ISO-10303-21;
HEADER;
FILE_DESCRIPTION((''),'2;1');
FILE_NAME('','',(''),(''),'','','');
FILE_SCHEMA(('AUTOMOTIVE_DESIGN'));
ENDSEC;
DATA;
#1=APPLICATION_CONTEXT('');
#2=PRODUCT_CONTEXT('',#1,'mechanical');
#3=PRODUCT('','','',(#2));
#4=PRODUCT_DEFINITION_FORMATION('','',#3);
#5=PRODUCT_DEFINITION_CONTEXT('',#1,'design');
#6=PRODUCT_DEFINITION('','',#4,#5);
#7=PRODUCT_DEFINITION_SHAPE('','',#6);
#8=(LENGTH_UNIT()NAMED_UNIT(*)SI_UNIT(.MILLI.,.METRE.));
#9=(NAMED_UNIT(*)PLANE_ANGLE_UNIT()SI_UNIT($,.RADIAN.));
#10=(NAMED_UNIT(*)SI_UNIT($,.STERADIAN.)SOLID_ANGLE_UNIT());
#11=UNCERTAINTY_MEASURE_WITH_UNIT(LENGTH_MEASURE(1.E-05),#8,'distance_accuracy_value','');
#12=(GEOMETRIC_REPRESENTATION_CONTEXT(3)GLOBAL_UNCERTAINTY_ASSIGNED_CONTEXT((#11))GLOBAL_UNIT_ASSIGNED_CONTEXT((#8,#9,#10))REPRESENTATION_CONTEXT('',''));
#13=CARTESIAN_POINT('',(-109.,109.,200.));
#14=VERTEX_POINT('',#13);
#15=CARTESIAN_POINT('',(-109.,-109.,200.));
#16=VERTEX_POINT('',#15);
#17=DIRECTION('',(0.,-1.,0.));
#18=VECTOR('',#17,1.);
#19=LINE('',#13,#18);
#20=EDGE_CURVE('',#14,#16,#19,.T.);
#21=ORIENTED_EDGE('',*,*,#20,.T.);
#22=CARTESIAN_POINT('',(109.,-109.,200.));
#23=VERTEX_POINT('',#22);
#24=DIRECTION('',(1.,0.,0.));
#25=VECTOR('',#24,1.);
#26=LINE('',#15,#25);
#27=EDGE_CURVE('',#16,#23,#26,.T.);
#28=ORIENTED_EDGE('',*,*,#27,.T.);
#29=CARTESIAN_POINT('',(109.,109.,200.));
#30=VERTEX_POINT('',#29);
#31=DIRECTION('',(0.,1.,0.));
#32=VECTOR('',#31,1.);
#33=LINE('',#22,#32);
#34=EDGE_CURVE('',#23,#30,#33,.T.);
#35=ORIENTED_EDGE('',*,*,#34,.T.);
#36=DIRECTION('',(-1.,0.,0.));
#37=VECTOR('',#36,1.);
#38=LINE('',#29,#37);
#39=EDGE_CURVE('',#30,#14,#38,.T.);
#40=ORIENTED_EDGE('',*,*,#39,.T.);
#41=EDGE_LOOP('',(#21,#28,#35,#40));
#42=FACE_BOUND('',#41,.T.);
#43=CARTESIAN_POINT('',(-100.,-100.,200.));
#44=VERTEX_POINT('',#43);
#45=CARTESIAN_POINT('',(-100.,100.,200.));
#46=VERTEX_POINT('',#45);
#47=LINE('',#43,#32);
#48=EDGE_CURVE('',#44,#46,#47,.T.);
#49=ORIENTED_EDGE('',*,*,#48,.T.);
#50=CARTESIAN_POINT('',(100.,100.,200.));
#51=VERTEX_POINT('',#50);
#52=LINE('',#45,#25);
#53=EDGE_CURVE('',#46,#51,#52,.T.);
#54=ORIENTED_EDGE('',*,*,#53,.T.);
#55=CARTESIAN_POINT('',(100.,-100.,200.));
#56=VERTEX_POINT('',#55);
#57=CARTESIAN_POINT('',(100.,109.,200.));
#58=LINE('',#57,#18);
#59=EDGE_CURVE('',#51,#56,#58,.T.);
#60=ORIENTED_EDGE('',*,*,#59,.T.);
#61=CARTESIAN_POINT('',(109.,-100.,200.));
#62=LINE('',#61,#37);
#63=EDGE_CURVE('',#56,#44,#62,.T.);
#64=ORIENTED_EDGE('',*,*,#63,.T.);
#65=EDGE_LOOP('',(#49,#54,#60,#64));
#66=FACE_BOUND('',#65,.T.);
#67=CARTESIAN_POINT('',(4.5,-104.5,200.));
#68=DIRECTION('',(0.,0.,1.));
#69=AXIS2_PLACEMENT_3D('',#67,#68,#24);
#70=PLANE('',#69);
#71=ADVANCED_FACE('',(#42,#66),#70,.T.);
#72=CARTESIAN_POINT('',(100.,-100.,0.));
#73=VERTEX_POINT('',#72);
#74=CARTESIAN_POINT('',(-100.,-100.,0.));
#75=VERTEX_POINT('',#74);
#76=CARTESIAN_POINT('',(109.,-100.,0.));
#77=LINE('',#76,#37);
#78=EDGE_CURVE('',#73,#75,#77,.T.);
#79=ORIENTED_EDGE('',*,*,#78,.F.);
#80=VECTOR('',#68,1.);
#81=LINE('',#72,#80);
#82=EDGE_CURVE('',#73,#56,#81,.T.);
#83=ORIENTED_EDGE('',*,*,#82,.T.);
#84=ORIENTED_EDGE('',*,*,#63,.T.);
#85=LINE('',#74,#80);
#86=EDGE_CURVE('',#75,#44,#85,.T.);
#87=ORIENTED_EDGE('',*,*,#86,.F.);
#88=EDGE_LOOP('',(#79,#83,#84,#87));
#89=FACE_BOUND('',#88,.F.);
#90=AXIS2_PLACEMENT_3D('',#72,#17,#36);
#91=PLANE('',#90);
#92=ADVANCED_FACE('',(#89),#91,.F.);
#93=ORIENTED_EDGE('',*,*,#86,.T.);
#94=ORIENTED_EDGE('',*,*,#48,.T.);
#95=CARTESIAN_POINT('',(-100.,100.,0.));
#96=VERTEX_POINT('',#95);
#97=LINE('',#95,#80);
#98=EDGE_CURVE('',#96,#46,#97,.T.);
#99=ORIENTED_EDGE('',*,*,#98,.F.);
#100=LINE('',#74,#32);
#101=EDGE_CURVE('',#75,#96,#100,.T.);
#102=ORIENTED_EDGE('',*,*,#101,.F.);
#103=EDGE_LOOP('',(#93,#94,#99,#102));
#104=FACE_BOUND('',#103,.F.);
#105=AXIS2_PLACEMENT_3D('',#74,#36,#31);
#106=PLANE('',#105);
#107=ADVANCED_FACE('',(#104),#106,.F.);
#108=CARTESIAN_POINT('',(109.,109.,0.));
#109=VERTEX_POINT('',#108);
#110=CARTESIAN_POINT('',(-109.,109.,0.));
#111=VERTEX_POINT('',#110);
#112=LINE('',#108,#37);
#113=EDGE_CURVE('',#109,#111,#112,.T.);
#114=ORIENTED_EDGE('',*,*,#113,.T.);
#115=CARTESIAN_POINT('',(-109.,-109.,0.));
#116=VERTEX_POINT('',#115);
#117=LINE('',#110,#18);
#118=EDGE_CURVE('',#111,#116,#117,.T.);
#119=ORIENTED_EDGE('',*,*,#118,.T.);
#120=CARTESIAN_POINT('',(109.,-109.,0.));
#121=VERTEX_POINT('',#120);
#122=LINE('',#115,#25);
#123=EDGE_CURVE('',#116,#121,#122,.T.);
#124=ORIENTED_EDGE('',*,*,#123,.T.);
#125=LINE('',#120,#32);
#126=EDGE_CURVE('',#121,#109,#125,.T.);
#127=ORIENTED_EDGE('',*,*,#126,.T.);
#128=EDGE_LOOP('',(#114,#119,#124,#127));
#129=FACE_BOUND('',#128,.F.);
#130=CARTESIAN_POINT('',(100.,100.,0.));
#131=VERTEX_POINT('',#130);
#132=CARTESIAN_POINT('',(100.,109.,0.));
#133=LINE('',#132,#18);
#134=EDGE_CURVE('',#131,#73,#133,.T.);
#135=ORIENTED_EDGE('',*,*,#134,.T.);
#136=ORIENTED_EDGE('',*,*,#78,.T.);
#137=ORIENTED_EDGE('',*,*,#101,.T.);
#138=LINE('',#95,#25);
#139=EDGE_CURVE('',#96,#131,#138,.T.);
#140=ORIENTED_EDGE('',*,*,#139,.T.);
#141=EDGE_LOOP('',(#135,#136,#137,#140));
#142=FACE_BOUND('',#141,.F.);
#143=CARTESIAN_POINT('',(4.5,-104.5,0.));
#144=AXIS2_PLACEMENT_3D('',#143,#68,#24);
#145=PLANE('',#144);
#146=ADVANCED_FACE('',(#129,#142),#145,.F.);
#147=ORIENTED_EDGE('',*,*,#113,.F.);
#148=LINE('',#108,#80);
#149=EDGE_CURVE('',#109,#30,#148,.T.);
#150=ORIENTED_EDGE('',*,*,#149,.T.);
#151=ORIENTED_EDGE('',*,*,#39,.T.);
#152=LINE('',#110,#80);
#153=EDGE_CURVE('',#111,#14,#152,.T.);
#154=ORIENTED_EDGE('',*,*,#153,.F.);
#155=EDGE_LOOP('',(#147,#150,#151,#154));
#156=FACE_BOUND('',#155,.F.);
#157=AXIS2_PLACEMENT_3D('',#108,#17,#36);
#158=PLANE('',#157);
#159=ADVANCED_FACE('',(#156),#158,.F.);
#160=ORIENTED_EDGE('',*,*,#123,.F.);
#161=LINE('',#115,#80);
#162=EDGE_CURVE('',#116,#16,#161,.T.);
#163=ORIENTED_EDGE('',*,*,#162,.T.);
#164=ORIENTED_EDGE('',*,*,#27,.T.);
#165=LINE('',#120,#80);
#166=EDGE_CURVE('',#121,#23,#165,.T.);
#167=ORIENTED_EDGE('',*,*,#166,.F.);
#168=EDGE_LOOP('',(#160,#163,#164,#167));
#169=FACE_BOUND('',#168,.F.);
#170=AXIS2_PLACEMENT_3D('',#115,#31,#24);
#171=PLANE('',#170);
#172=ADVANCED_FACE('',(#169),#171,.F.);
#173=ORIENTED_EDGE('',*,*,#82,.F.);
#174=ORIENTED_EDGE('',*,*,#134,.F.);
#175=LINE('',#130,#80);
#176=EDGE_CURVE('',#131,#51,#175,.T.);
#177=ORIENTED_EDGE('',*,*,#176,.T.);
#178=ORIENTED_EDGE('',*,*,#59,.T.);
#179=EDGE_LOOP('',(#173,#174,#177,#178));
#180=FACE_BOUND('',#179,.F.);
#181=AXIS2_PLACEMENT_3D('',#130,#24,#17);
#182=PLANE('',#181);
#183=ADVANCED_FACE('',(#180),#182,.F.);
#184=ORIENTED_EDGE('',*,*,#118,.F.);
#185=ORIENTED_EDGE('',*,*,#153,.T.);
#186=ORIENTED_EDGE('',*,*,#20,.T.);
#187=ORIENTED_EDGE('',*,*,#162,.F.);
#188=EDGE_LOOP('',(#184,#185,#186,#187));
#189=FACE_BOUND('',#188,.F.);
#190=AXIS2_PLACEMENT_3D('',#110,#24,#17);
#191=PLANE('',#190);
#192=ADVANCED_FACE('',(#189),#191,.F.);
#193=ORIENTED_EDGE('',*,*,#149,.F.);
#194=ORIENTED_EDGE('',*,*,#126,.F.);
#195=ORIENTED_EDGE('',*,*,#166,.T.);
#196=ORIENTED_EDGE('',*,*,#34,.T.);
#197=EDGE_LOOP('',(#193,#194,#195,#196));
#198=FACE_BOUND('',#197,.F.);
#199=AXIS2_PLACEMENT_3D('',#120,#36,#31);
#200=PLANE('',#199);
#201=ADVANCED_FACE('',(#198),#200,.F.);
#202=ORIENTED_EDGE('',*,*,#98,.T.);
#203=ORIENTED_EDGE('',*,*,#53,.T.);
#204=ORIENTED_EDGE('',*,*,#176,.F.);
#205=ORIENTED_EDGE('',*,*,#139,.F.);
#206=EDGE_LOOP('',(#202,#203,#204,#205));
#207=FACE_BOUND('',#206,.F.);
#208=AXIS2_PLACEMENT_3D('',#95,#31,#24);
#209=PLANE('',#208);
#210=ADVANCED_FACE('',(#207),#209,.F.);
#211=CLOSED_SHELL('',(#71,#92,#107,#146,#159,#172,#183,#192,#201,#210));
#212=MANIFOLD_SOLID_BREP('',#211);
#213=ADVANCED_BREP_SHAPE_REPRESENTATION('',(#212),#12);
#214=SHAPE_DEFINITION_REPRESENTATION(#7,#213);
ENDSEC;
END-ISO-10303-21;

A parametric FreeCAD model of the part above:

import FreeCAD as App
import Part
import Sketcher

V = App.Vector
Q = App.Units.Quantity

doc = App.newDocument("Part")
params = doc.addObject("Spreadsheet::Sheet", "Params")
for row, (alias, value) in enumerate([
    ("sketch1_width", "218 mm"),
    ("sketch1_width2", "200 mm"),
    ("pad1_length", "200 mm"),
], start=1):
    params.set(f"A{row}", alias)
    params.set(f"B{row}", "=" + value)
    params.setAlias(f"B{row}", alias)

body = doc.addObject("PartDesign::Body", "Body")

# Sketch on XY plane
sketch1 = body.newObject("Sketcher::SketchObject", "Sketch")
sketch1.AttachmentSupport = (doc.getObject("XY_Plane"), [""])
sketch1.MapMode = "FlatFace"
sketch1.addGeometry([
    Part.LineSegment(V(109, -109, 0), V(109, 109, 0)),  # 0
    Part.LineSegment(V(109, 109, 0), V(-109, 109, 0)),  # 1
    Part.LineSegment(V(-109, 109, 0), V(-109, -109, 0)),  # 2
    Part.LineSegment(V(-109, -109, 0), V(109, -109, 0)),  # 3
    Part.LineSegment(V(100, 100, 0), V(100, -100, 0)),  # 4
    Part.LineSegment(V(100, -100, 0), V(-100, -100, 0)),  # 5
    Part.LineSegment(V(-100, -100, 0), V(-100, 100, 0)),  # 6
    Part.LineSegment(V(-100, 100, 0), V(100, 100, 0)),  # 7
], False)
sketch1.addConstraint([
    Sketcher.Constraint("Coincident", 0, 2, 1, 1),
    Sketcher.Constraint("Coincident", 1, 2, 2, 1),
    Sketcher.Constraint("Coincident", 2, 2, 3, 1),
    Sketcher.Constraint("Coincident", 3, 2, 0, 1),
    Sketcher.Constraint("Coincident", 4, 2, 5, 1),
    Sketcher.Constraint("Coincident", 5, 2, 6, 1),
    Sketcher.Constraint("Coincident", 6, 2, 7, 1),
    Sketcher.Constraint("Coincident", 7, 2, 4, 1),
    Sketcher.Constraint("Vertical", 0),
    Sketcher.Constraint("Horizontal", 1),
    Sketcher.Constraint("Vertical", 2),
    Sketcher.Constraint("Horizontal", 3),
    Sketcher.Constraint("Vertical", 4),
    Sketcher.Constraint("Horizontal", 5),
    Sketcher.Constraint("Vertical", 6),
    Sketcher.Constraint("Horizontal", 7),
    Sketcher.Constraint("Symmetric", 0, 2, 2, 2, -1, 1),
    Sketcher.Constraint("Symmetric", 4, 2, 6, 2, -1, 1),
    Sketcher.Constraint("Equal", 3, 0),
    Sketcher.Constraint("Equal", 7, 4),
    Sketcher.Constraint("DistanceX", 1, 2, 1, 1, Q("218 mm")),
    Sketcher.Constraint("DistanceX", 5, 2, 5, 1, Q("200 mm")),
])
sketch1.setExpression("Constraints[20]", "Params.sketch1_width")
sketch1.setExpression("Constraints[21]", "Params.sketch1_width2")
pad1 = body.newObject("PartDesign::Pad", "Pad")
pad1.Profile = sketch1
pad1.setExpression("Length", "Params.pad1_length")

doc.recompute()
